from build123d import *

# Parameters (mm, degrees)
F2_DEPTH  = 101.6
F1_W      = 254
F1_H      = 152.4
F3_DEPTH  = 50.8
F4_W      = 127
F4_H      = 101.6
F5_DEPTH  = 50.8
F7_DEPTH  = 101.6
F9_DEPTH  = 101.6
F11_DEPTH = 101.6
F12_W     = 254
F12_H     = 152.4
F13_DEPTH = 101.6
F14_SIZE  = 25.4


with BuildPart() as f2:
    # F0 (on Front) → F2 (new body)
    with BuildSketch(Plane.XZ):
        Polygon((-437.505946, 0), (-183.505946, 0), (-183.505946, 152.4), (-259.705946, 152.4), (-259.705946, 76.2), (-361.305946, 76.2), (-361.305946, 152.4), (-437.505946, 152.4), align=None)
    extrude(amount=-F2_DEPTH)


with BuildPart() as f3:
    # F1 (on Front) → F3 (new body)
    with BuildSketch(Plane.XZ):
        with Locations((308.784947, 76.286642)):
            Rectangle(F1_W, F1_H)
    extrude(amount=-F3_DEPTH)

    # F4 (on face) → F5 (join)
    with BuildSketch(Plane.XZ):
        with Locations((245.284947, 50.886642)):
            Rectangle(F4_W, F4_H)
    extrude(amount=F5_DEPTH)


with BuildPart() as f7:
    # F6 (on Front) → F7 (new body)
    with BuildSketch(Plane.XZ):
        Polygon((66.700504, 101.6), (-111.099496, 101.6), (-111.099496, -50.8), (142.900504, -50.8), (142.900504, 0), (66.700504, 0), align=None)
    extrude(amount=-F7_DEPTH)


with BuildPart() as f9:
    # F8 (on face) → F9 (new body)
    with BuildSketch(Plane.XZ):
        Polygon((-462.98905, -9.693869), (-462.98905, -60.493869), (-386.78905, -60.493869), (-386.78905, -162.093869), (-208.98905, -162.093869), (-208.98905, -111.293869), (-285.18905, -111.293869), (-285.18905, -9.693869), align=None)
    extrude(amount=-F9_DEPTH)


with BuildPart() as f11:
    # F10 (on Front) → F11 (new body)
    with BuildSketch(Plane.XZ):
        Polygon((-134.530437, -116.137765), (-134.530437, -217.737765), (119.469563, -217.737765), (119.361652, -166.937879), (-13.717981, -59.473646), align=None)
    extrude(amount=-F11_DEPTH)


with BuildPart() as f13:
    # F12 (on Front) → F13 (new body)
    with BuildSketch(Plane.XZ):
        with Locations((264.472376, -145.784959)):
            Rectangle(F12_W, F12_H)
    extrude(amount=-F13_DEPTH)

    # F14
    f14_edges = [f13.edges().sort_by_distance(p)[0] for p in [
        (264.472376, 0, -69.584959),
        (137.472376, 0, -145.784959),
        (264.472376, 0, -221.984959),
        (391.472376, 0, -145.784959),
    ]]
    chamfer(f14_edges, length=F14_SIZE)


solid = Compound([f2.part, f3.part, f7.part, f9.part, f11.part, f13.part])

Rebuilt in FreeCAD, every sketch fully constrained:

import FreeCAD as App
import Part
import Sketcher

V = App.Vector
Q = App.Units.Quantity


def edges_at(feature, points):
    """Names of the edges that pass closest to the given points."""
    edges = feature.Shape.Edges
    near = lambda p: min(range(len(edges)), key=lambda i: edges[i].distToShape(Part.Vertex(*p))[0])
    return sorted({f"Edge{near(p) + 1}" for p in points})

doc = App.newDocument("Part")
params = doc.addObject("Spreadsheet::Sheet", "Params")
for row, (alias, value) in enumerate([
    ("sketch1_width", "10 in"),
    ("sketch1_width2", "3 in"),
    ("sketch1_height", "6 in"),
    ("pad1_length", "4 in"),
    ("sketch2_width", "10 in"),
    ("sketch2_height", "6 in"),
    ("pad2_length", "2 in"),
    ("sketch3_width", "5 in"),
    ("sketch3_height", "4 in"),
    ("pad3_length", "2 in"),
    ("sketch4_width", "7 in"),
    ("sketch4_width2", "10 in"),
    ("sketch4_height", "6 in"),
    ("sketch4_height2", "2 in"),
    ("pad4_length", "4 in"),
    ("sketch5_width", "3 in"),
    ("sketch5_width2", "7 in"),
    ("sketch5_height", "2 in"),
    ("sketch5_height2", "4 in"),
    ("pad5_length", "4 in"),
    ("sketch6_width", "10 in"),
    ("sketch6_height", "4 in"),
    ("sketch6_length", "2 in"),
    ("pad6_length", "4 in"),
    ("sketch7_width", "10 in"),
    ("sketch7_height", "6 in"),
    ("pad7_length", "4 in"),
    ("chamfer_size", "1 in"),
], start=1):
    params.set(f"A{row}", alias)
    params.set(f"B{row}", "=" + value)
    params.setAlias(f"B{row}", alias)

body = doc.addObject("PartDesign::Body", "Body")

# Sketch on XZ plane
sketch1 = doc.addObject("Sketcher::SketchObject", "Sketch")
body.addObject(sketch1)
sketch1.AttachmentSupport = (doc.XZ_Plane, [""])
sketch1.MapMode = "FlatFace"
sketch1.addGeometry(Part.LineSegment(V(-437.505946, 0, 0), V(-183.505946, 0, 0)), False)
sketch1.addGeometry(Part.LineSegment(V(-183.505946, 0, 0), V(-183.505946, 152.4, 0)), False)
sketch1.addGeometry(Part.LineSegment(V(-183.505946, 152.4, 0), V(-259.705946, 152.4, 0)), False)
sketch1.addGeometry(Part.LineSegment(V(-259.705946, 152.4, 0), V(-259.705946, 76.2, 0)), False)
sketch1.addGeometry(Part.LineSegment(V(-259.705946, 76.2, 0), V(-361.305946, 76.2, 0)), False)
sketch1.addGeometry(Part.LineSegment(V(-361.305946, 76.2, 0), V(-361.305946, 152.4, 0)), False)
sketch1.addGeometry(Part.LineSegment(V(-361.305946, 152.4, 0), V(-437.505946, 152.4, 0)), False)
sketch1.addGeometry(Part.LineSegment(V(-437.505946, 152.4, 0), V(-437.505946, 0, 0)), False)
sketch1.addConstraint(Sketcher.Constraint("Coincident", 0, 2, 1, 1))
sketch1.addConstraint(Sketcher.Constraint("Coincident", 1, 2, 2, 1))
sketch1.addConstraint(Sketcher.Constraint("Coincident", 2, 2, 3, 1))
sketch1.addConstraint(Sketcher.Constraint("Coincident", 3, 2, 4, 1))
sketch1.addConstraint(Sketcher.Constraint("Coincident", 4, 2, 5, 1))
sketch1.addConstraint(Sketcher.Constraint("Coincident", 5, 2, 6, 1))
sketch1.addConstraint(Sketcher.Constraint("Coincident", 6, 2, 7, 1))
sketch1.addConstraint(Sketcher.Constraint("Coincident", 7, 2, 0, 1))
sketch1.addConstraint(Sketcher.Constraint("Horizontal", 0))
sketch1.addConstraint(Sketcher.Constraint("Vertical", 1))
sketch1.addConstraint(Sketcher.Constraint("Horizontal", 2))
sketch1.addConstraint(Sketcher.Constraint("Vertical", 3))
sketch1.addConstraint(Sketcher.Constraint("Horizontal", 4))
sketch1.addConstraint(Sketcher.Constraint("Vertical", 5))
sketch1.addConstraint(Sketcher.Constraint("Horizontal", 6))
sketch1.addConstraint(Sketcher.Constraint("Vertical", 7))
sketch1.addConstraint(Sketcher.Constraint("PointOnObject", 0, 2, -1))
sketch1.addConstraint(Sketcher.Constraint("Horizontal", 2, 2, 5, 2))
sketch1.addConstraint(Sketcher.Constraint("Equal", 2, 6))
sketch1.addConstraint(Sketcher.Constraint("Equal", 6, 3))
sketch1.addConstraint(Sketcher.Constraint("DistanceX", 0, 1, 0, 2, Q("10 in")))
sketch1.addConstraint(Sketcher.Constraint("DistanceX", 2, 2, 2, 1, Q("3 in")))
sketch1.addConstraint(Sketcher.Constraint("DistanceY", 1, 1, 1, 2, Q("6 in")))
sketch1.addConstraint(Sketcher.Constraint("DistanceX", 0, 2, -1, 1, Q("183.505946 mm")))
sketch1.setExpression("Constraints[20]", "Params.sketch1_width")
sketch1.setExpression("Constraints[21]", "Params.sketch1_width2")
sketch1.setExpression("Constraints[22]", "Params.sketch1_height")
pad1 = doc.addObject("PartDesign::Pad", "Pad")
body.addObject(pad1)
pad1.Profile = sketch1
pad1.setExpression("Length", "Params.pad1_length")
pad1.Reversed = True
body2 = doc.addObject("PartDesign::Body", "Body001")

# Sketch on XZ plane
sketch2 = doc.addObject("Sketcher::SketchObject", "Sketch001")
body2.addObject(sketch2)
sketch2.AttachmentSupport = (doc.getObject("XZ_Plane001"), [""])
sketch2.MapMode = "FlatFace"
sketch2.addGeometry(Part.LineSegment(V(181.784947, 152.486642, 0), V(181.784947, 0.086642, 0)), False)
sketch2.addGeometry(Part.LineSegment(V(181.784947, 0.086642, 0), V(435.784947, 0.086642, 0)), False)
sketch2.addGeometry(Part.LineSegment(V(435.784947, 0.086642, 0), V(435.784947, 152.486642, 0)), False)
sketch2.addGeometry(Part.LineSegment(V(435.784947, 152.486642, 0), V(181.784947, 152.486642, 0)), False)
sketch2.addConstraint(Sketcher.Constraint("Coincident", 0, 2, 1, 1))
sketch2.addConstraint(Sketcher.Constraint("Coincident", 1, 2, 2, 1))
sketch2.addConstraint(Sketcher.Constraint("Coincident", 2, 2, 3, 1))
sketch2.addConstraint(Sketcher.Constraint("Coincident", 3, 2, 0, 1))
sketch2.addConstraint(Sketcher.Constraint("Vertical", 0))
sketch2.addConstraint(Sketcher.Constraint("Horizontal", 1))
sketch2.addConstraint(Sketcher.Constraint("Vertical", 2))
sketch2.addConstraint(Sketcher.Constraint("Horizontal", 3))
sketch2.addConstraint(Sketcher.Constraint("DistanceX", 1, 1, 1, 2, Q("10 in")))
sketch2.addConstraint(Sketcher.Constraint("DistanceY", 0, 2, 0, 1, Q("6 in")))
sketch2.addConstraint(Sketcher.Constraint("DistanceY", -1, 1, 2, 2, Q("152.486642 mm")))
sketch2.addConstraint(Sketcher.Constraint("DistanceX", -1, 1, 0, 2, Q("181.784947 mm")))
sketch2.setExpression("Constraints[8]", "Params.sketch2_width")
sketch2.setExpression("Constraints[9]", "Params.sketch2_height")
pad2 = doc.addObject("PartDesign::Pad", "Pad001")
body2.addObject(pad2)
pad2.Profile = sketch2
pad2.setExpression("Length", "Params.pad2_length")
pad2.Reversed = True

# Sketch on XZ plane
sketch3 = doc.addObject("Sketcher::SketchObject", "Sketch002")
body2.addObject(sketch3)
sketch3.AttachmentSupport = (doc.getObject("XZ_Plane001"), [""])
sketch3.MapMode = "FlatFace"
sketch3.addGeometry(Part.LineSegment(V(181.784947, 101.686642, 0), V(181.784947, 0.086642, 0)), False)
sketch3.addGeometry(Part.LineSegment(V(181.784947, 0.086642, 0), V(308.784947, 0.086642, 0)), False)
sketch3.addGeometry(Part.LineSegment(V(308.784947, 0.086642, 0), V(308.784947, 101.686642, 0)), False)
sketch3.addGeometry(Part.LineSegment(V(308.784947, 101.686642, 0), V(181.784947, 101.686642, 0)), False)
sketch3.addConstraint(Sketcher.Constraint("Coincident", 0, 2, 1, 1))
sketch3.addConstraint(Sketcher.Constraint("Coincident", 1, 2, 2, 1))
sketch3.addConstraint(Sketcher.Constraint("Coincident", 2, 2, 3, 1))
sketch3.addConstraint(Sketcher.Constraint("Coincident", 3, 2, 0, 1))
sketch3.addConstraint(Sketcher.Constraint("Vertical", 0))
sketch3.addConstraint(Sketcher.Constraint("Horizontal", 1))
sketch3.addConstraint(Sketcher.Constraint("Vertical", 2))
sketch3.addConstraint(Sketcher.Constraint("Horizontal", 3))
sketch3.addConstraint(Sketcher.Constraint("DistanceX", 1, 1, 1, 2, Q("5 in")))
sketch3.addConstraint(Sketcher.Constraint("DistanceY", 0, 2, 0, 1, Q("4 in")))
sketch3.addConstraint(Sketcher.Constraint("DistanceX", -1, 1, 0, 2, Q("181.784947 mm")))
sketch3.addConstraint(Sketcher.Constraint("DistanceY", -1, 1, 0, 2, Q("0.086642 mm")))
sketch3.setExpression("Constraints[8]", "Params.sketch3_width")
sketch3.setExpression("Constraints[9]", "Params.sketch3_height")
pad3 = doc.addObject("PartDesign::Pad", "Pad002")
body2.addObject(pad3)
pad3.Profile = sketch3
pad3.setExpression("Length", "Params.pad3_length")
body3 = doc.addObject("PartDesign::Body", "Body002")

# Sketch on XZ plane
sketch4 = doc.addObject("Sketcher::SketchObject", "Sketch003")
body3.addObject(sketch4)
sketch4.AttachmentSupport = (doc.getObject("XZ_Plane002"), [""])
sketch4.MapMode = "FlatFace"
sketch4.addGeometry(Part.LineSegment(V(66.700504, 101.6, 0), V(-111.099496, 101.6, 0)), False)
sketch4.addGeometry(Part.LineSegment(V(-111.099496, 101.6, 0), V(-111.099496, -50.8, 0)), False)
sketch4.addGeometry(Part.LineSegment(V(-111.099496, -50.8, 0), V(142.900504, -50.8, 0)), False)
sketch4.addGeometry(Part.LineSegment(V(142.900504, -50.8, 0), V(142.900504, 0, 0)), False)
sketch4.addGeometry(Part.LineSegment(V(142.900504, 0, 0), V(66.700504, 0, 0)), False)
sketch4.addGeometry(Part.LineSegment(V(66.700504, 0, 0), V(66.700504, 101.6, 0)), False)
sketch4.addConstraint(Sketcher.Constraint("Coincident", 0, 2, 1, 1))
sketch4.addConstraint(Sketcher.Constraint("Coincident", 1, 2, 2, 1))
sketch4.addConstraint(Sketcher.Constraint("Coincident", 2, 2, 3, 1))
sketch4.addConstraint(Sketcher.Constraint("Coincident", 3, 2, 4, 1))
sketch4.addConstraint(Sketcher.Constraint("Coincident", 4, 2, 5, 1))
sketch4.addConstraint(Sketcher.Constraint("Coincident", 5, 2, 0, 1))
sketch4.addConstraint(Sketcher.Constraint("Horizontal", 0))
sketch4.addConstraint(Sketcher.Constraint("Vertical", 1))
sketch4.addConstraint(Sketcher.Constraint("Horizontal", 2))
sketch4.addConstraint(Sketcher.Constraint("Vertical", 3))
sketch4.addConstraint(Sketcher.Constraint("Horizontal", 4))
sketch4.addConstraint(Sketcher.Constraint("Vertical", 5))
sketch4.addConstraint(Sketcher.Constraint("PointOnObject", 3, 2, -1))
sketch4.addConstraint(Sketcher.Constraint("DistanceX", 0, 2, 0, 1, Q("7 in")))
sketch4.addConstraint(Sketcher.Constraint("DistanceX", 2, 1, 2, 2, Q("10 in")))
sketch4.addConstraint(Sketcher.Constraint("DistanceY", 1, 2, 1, 1, Q("6 in")))
sketch4.addConstraint(Sketcher.Constraint("DistanceY", 3, 1, 3, 2, Q("2 in")))
sketch4.addConstraint(Sketcher.Constraint("DistanceX", 0, 2, -1, 1, Q("111.099496 mm")))
sketch4.setExpression("Constraints[13]", "Params.sketch4_width")
sketch4.setExpression("Constraints[14]", "Params.sketch4_width2")
sketch4.setExpression("Constraints[15]", "Params.sketch4_height")
sketch4.setExpression("Constraints[16]", "Params.sketch4_height2")
pad4 = doc.addObject("PartDesign::Pad", "Pad003")
body3.addObject(pad4)
pad4.Profile = sketch4
pad4.setExpression("Length", "Params.pad4_length")
pad4.Reversed = True
body4 = doc.addObject("PartDesign::Body", "Body003")

# Sketch on XZ plane
sketch5 = doc.addObject("Sketcher::SketchObject", "Sketch004")
body4.addObject(sketch5)
sketch5.AttachmentSupport = (doc.getObject("XZ_Plane003"), [""])
sketch5.MapMode = "FlatFace"
sketch5.addGeometry(Part.LineSegment(V(-462.98905, -9.693869, 0), V(-462.98905, -60.493869, 0)), False)
sketch5.addGeometry(Part.LineSegment(V(-462.98905, -60.493869, 0), V(-386.78905, -60.493869, 0)), False)
sketch5.addGeometry(Part.LineSegment(V(-386.78905, -60.493869, 0), V(-386.78905, -162.093869, 0)), False)
sketch5.addGeometry(Part.LineSegment(V(-386.78905, -162.093869, 0), V(-208.98905, -162.093869, 0)), False)
sketch5.addGeometry(Part.LineSegment(V(-208.98905, -162.093869, 0), V(-208.98905, -111.293869, 0)), False)
sketch5.addGeometry(Part.LineSegment(V(-208.98905, -111.293869, 0), V(-285.18905, -111.293869, 0)), False)
sketch5.addGeometry(Part.LineSegment(V(-285.18905, -111.293869, 0), V(-285.18905, -9.693869, 0)), False)
sketch5.addGeometry(Part.LineSegment(V(-285.18905, -9.693869, 0), V(-462.98905, -9.693869, 0)), False)
sketch5.addConstraint(Sketcher.Constraint("Coincident", 0, 2, 1, 1))
sketch5.addConstraint(Sketcher.Constraint("Coincident", 1, 2, 2, 1))
sketch5.addConstraint(Sketcher.Constraint("Coincident", 2, 2, 3, 1))
sketch5.addConstraint(Sketcher.Constraint("Coincident", 3, 2, 4, 1))
sketch5.addConstraint(Sketcher.Constraint("Coincident", 4, 2, 5, 1))
sketch5.addConstraint(Sketcher.Constraint("Coincident", 5, 2, 6, 1))
sketch5.addConstraint(Sketcher.Constraint("Coincident", 6, 2, 7, 1))
sketch5.addConstraint(Sketcher.Constraint("Coincident", 7, 2, 0, 1))
sketch5.addConstraint(Sketcher.Constraint("Vertical", 0))
sketch5.addConstraint(Sketcher.Constraint("Horizontal", 1))
sketch5.addConstraint(Sketcher.Constraint("Vertical", 2))
sketch5.addConstraint(Sketcher.Constraint("Horizontal", 3))
sketch5.addConstraint(Sketcher.Constraint("Vertical", 4))
sketch5.addConstraint(Sketcher.Constraint("Horizontal", 5))
sketch5.addConstraint(Sketcher.Constraint("Vertical", 6))
sketch5.addConstraint(Sketcher.Constraint("Horizontal", 7))
sketch5.addConstraint(Sketcher.Constraint("Equal", 1, 5))
sketch5.addConstraint(Sketcher.Constraint("Equal", 0, 4))
sketch5.addConstraint(Sketcher.Constraint("DistanceX", 1, 1, 1, 2, Q("3 in")))
sketch5.addConstraint(Sketcher.Constraint("DistanceX", 3, 1, 3, 2, Q("7 in")))
sketch5.addConstraint(Sketcher.Constraint("DistanceY", 0, 2, 0, 1, Q("2 in")))
sketch5.addConstraint(Sketcher.Constraint("DistanceY", 2, 2, 2, 1, Q("4 in")))
sketch5.addConstraint(Sketcher.Constraint("DistanceX", 0, 2, -1, 1, Q("462.98905 mm")))
sketch5.addConstraint(Sketcher.Constraint("DistanceY", 0, 2, -1, 1, Q("60.493869 mm")))
sketch5.setExpression("Constraints[18]", "Params.sketch5_width")
sketch5.setExpression("Constraints[19]", "Params.sketch5_width2")
sketch5.setExpression("Constraints[20]", "Params.sketch5_height")
sketch5.setExpression("Constraints[21]", "Params.sketch5_height2")
pad5 = doc.addObject("PartDesign::Pad", "Pad004")
body4.addObject(pad5)
pad5.Profile = sketch5
pad5.setExpression("Length", "Params.pad5_length")
pad5.Reversed = True
body5 = doc.addObject("PartDesign::Body", "Body004")

# Sketch on XZ plane
sketch6 = doc.addObject("Sketcher::SketchObject", "Sketch005")
body5.addObject(sketch6)
sketch6.AttachmentSupport = (doc.getObject("XZ_Plane004"), [""])
sketch6.MapMode = "FlatFace"
sketch6.addGeometry(Part.LineSegment(V(-134.530437, -116.137765, 0), V(-134.530437, -217.737765, 0)), False)
sketch6.addGeometry(Part.LineSegment(V(-134.530437, -217.737765, 0), V(119.469563, -217.737765, 0)), False)
sketch6.addGeometry(Part.LineSegment(V(119.469563, -217.737765, 0), V(119.361652, -166.937879, 0)), False)
sketch6.addGeometry(Part.LineSegment(V(119.361652, -166.937879, 0), V(-13.717981, -59.473646, 0)), False)
sketch6.addGeometry(Part.LineSegment(V(-13.717981, -59.473646, 0), V(-134.530437, -116.137765, 0)), False)
sketch6.addConstraint(Sketcher.Constraint("Coincident", 0, 2, 1, 1))
sketch6.addConstraint(Sketcher.Constraint("Coincident", 1, 2, 2, 1))
sketch6.addConstraint(Sketcher.Constraint("Coincident", 2, 2, 3, 1))
sketch6.addConstraint(Sketcher.Constraint("Coincident", 3, 2, 4, 1))
sketch6.addConstraint(Sketcher.Constraint("Coincident", 4, 2, 0, 1))
sketch6.addConstraint(Sketcher.Constraint("Vertical", 0))
sketch6.addConstraint(Sketcher.Constraint("Horizontal", 1))
sketch6.addConstraint(Sketcher.Constraint("DistanceX", 1, 1, 1, 2, Q("10 in")))
sketch6.addConstraint(Sketcher.Constraint("DistanceY", 0, 2, 0, 1, Q("4 in")))
sketch6.addConstraint(Sketcher.Constraint("Distance", 2, Q("2 in")))
sketch6.addConstraint(Sketcher.Constraint("DistanceY", 2, 2, -1, 1, Q("166.937879 mm")))
sketch6.addConstraint(Sketcher.Constraint("DistanceX", 3, 2, -1, 1, Q("13.717981 mm")))
sketch6.addConstraint(Sketcher.Constraint("DistanceX", 2, 2, 1, 2, Q("0.107911 mm")))
sketch6.addConstraint(Sketcher.Constraint("DistanceY", 0, 2, 3, 2, Q("158.264119 mm")))
sketch6.addConstraint(Sketcher.Constraint("Distance", 3, Q("171.051893 mm")))
sketch6.setExpression("Constraints[7]", "Params.sketch6_width")
sketch6.setExpression("Constraints[8]", "Params.sketch6_height")
sketch6.setExpression("Constraints[9]", "Params.sketch6_length")
pad6 = doc.addObject("PartDesign::Pad", "Pad005")
body5.addObject(pad6)
pad6.Profile = sketch6
pad6.setExpression("Length", "Params.pad6_length")
pad6.Reversed = True
body6 = doc.addObject("PartDesign::Body", "Body005")

# Sketch on XZ plane
sketch7 = doc.addObject("Sketcher::SketchObject", "Sketch006")
body6.addObject(sketch7)
sketch7.AttachmentSupport = (doc.getObject("XZ_Plane005"), [""])
sketch7.MapMode = "FlatFace"
sketch7.addGeometry(Part.LineSegment(V(137.472376, -69.584959, 0), V(137.472376, -221.984959, 0)), False)
sketch7.addGeometry(Part.LineSegment(V(137.472376, -221.984959, 0), V(391.472376, -221.984959, 0)), False)
sketch7.addGeometry(Part.LineSegment(V(391.472376, -221.984959, 0), V(391.472376, -69.584959, 0)), False)
sketch7.addGeometry(Part.LineSegment(V(391.472376, -69.584959, 0), V(137.472376, -69.584959, 0)), False)
sketch7.addConstraint(Sketcher.Constraint("Coincident", 0, 2, 1, 1))
sketch7.addConstraint(Sketcher.Constraint("Coincident", 1, 2, 2, 1))
sketch7.addConstraint(Sketcher.Constraint("Coincident", 2, 2, 3, 1))
sketch7.addConstraint(Sketcher.Constraint("Coincident", 3, 2, 0, 1))
sketch7.addConstraint(Sketcher.Constraint("Vertical", 0))
sketch7.addConstraint(Sketcher.Constraint("Horizontal", 1))
sketch7.addConstraint(Sketcher.Constraint("Vertical", 2))
sketch7.addConstraint(Sketcher.Constraint("Horizontal", 3))
sketch7.addConstraint(Sketcher.Constraint("DistanceX", 1, 1, 1, 2, Q("10 in")))
sketch7.addConstraint(Sketcher.Constraint("DistanceY", 0, 2, 0, 1, Q("6 in")))
sketch7.addConstraint(Sketcher.Constraint("DistanceY", 0, 2, -1, 1, Q("221.984959 mm")))
sketch7.addConstraint(Sketcher.Constraint("DistanceX", -1, 1, 0, 2, Q("137.472376 mm")))
sketch7.setExpression("Constraints[8]", "Params.sketch7_width")
sketch7.setExpression("Constraints[9]", "Params.sketch7_height")
pad7 = doc.addObject("PartDesign::Pad", "Pad006")
body6.addObject(pad7)
pad7.Profile = sketch7
pad7.setExpression("Length", "Params.pad7_length")
pad7.Reversed = True
doc.recompute()

chamfer = doc.addObject("PartDesign::Chamfer", "Chamfer")
body6.addObject(chamfer)
chamfer.Base = (pad7, edges_at(pad7, [
    (264.472, 0, -69.585),
    (137.472, 0, -145.785),
    (264.472, 0, -221.985),
    (391.472, 0, -145.785),
]))
chamfer.setExpression("Size", "Params.chamfer_size")

doc.recompute()
